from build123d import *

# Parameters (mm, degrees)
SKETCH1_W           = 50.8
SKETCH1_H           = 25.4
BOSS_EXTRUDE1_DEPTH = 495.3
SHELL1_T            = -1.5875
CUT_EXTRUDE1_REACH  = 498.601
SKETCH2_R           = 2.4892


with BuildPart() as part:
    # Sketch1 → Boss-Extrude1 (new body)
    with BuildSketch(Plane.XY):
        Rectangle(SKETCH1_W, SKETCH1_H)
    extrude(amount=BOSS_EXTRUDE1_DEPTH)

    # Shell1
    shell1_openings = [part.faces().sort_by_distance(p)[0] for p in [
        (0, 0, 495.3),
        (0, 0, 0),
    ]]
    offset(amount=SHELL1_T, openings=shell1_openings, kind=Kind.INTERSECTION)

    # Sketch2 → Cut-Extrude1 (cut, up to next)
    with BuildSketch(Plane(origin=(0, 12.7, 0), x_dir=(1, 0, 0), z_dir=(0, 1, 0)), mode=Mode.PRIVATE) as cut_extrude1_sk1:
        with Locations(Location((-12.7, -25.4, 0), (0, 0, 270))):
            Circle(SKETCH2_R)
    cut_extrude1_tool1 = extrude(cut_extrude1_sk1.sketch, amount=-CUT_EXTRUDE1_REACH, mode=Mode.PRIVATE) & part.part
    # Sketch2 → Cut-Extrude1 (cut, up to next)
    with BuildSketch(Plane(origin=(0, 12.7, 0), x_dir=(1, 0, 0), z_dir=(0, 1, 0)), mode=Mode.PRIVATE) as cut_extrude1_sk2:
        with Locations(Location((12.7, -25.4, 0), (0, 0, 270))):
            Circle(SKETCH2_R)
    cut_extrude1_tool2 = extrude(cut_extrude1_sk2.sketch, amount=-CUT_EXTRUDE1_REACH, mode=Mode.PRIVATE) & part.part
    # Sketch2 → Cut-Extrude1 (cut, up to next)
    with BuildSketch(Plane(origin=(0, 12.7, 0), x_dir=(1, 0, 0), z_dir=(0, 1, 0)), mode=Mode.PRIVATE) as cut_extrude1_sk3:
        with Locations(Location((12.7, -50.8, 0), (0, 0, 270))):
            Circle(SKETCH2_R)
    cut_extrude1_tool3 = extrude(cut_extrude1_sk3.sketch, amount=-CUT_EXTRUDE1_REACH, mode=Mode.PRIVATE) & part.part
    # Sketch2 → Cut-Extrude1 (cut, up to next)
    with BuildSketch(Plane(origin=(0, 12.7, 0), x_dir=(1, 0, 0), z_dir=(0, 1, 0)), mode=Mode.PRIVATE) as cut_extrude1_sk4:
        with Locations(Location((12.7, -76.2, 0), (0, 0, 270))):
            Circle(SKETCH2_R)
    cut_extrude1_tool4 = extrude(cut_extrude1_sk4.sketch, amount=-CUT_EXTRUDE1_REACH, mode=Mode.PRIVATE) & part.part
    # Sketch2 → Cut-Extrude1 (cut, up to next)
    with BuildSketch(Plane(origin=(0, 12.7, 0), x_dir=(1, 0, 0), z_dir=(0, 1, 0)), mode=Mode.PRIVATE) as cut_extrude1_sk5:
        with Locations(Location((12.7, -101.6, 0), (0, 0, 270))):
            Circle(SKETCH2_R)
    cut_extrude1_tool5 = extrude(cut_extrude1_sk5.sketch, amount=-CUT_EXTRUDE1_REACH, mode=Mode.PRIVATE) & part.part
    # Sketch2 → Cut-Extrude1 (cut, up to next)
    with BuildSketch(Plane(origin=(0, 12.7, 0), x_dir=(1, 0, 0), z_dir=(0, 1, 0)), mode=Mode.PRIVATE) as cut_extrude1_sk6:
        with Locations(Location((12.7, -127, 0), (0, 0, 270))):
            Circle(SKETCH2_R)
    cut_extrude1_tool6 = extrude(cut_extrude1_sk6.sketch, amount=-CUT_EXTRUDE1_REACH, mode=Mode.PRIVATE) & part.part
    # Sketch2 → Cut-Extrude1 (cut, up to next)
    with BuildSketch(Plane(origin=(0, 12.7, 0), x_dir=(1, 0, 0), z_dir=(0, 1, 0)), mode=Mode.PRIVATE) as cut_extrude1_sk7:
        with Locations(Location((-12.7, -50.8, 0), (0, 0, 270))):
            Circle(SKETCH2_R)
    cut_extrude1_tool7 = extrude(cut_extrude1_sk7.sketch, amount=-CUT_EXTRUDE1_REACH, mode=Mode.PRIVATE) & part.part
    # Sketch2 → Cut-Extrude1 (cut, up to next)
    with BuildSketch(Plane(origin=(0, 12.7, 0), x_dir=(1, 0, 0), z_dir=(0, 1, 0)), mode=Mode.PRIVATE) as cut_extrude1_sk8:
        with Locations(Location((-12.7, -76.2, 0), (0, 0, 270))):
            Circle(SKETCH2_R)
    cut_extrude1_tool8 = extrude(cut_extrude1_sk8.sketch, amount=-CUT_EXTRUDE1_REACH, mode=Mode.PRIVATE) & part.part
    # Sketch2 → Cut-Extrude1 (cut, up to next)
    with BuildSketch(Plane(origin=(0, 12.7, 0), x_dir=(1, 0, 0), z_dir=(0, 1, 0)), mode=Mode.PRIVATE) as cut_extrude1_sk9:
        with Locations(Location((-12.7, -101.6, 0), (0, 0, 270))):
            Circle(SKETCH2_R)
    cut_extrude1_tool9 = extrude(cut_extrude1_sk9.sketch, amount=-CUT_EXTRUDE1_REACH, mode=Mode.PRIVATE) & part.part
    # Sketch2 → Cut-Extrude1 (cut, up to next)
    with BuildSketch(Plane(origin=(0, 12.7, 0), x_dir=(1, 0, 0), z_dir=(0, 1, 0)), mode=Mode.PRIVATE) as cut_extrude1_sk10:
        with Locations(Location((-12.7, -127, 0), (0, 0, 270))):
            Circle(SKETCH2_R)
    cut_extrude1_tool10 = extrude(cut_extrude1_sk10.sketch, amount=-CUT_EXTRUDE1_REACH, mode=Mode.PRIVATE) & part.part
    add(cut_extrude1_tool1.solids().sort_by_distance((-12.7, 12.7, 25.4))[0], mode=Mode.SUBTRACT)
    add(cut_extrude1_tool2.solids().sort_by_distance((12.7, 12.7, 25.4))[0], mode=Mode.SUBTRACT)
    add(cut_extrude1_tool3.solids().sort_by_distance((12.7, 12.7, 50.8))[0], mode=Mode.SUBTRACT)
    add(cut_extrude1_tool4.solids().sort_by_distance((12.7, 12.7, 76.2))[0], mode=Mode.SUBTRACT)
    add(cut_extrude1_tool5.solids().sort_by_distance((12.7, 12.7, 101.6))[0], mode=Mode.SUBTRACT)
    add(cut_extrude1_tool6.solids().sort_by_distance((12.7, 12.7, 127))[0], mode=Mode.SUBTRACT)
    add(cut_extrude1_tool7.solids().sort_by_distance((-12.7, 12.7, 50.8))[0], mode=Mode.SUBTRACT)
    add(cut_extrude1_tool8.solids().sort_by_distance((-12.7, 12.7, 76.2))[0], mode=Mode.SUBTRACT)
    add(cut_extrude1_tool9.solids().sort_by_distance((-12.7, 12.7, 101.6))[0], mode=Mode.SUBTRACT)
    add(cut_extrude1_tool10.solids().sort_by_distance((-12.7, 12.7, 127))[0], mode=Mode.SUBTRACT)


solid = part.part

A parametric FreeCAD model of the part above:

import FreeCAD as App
import Part
import Sketcher

V = App.Vector
Q = App.Units.Quantity


def faces_at(feature, points):
    """Names of the faces that lie closest to the given points."""
    faces = feature.Shape.Faces
    near = lambda p: min(range(len(faces)), key=lambda i: faces[i].distToShape(Part.Vertex(*p))[0])
    return sorted({f"Face{near(p) + 1}" for p in points})


def add_polygon(sketch, points):
    """Adds a closed chain of lines whose ends are joined by coincident constraints."""
    first, n = sketch.GeometryCount, len(points)
    for a, b in zip(points, points[1:] + points[:1]):
        sketch.addGeometry(Part.LineSegment(App.Vector(*a, 0), App.Vector(*b, 0)), False)
    for i in range(n):
        sketch.addConstraint(Sketcher.Constraint("Coincident", first + i, 2, first + (i + 1) % n, 1))

doc = App.newDocument("Part")
params = doc.addObject("Spreadsheet::Sheet", "Params")
for row, (alias, value) in enumerate([
    ("sketch1_width", "2 in"),
    ("sketch1_height", "1 in"),
    ("pad1_length", "19.5 in"),
    ("thickness_wall", "0.0625 in"),
    ("sketch2_diameter", "0.196 in"),
    ("sketch3_diameter", "0.196 in"),
    ("sketch4_diameter", "0.196 in"),
    ("sketch5_diameter", "0.196 in"),
    ("sketch6_diameter", "0.196 in"),
    ("sketch7_diameter", "0.196 in"),
    ("sketch8_diameter", "0.196 in"),
    ("sketch9_diameter", "0.196 in"),
    ("sketch10_diameter", "0.196 in"),
    ("sketch11_diameter", "0.196 in"),
], start=1):
    params.set(f"A{row}", alias)
    params.set(f"B{row}", "=" + value)
    params.setAlias(f"B{row}", alias)

body = doc.addObject("PartDesign::Body", "Body")

# Sketch on XY plane
sketch1 = doc.addObject("Sketcher::SketchObject", "Sketch")
body.addObject(sketch1)
sketch1.AttachmentSupport = (doc.XY_Plane, [""])
sketch1.MapMode = "FlatFace"
add_polygon(sketch1, [(-25, 13), (-25, -13), (25, -13), (25, 13)])  # lines 0-3
sketch1.addConstraint([
    Sketcher.Constraint("Vertical", 0),
    Sketcher.Constraint("Horizontal", 1),
    Sketcher.Constraint("Vertical", 2),
    Sketcher.Constraint("Horizontal", 3),
    Sketcher.Constraint("Symmetric", 0, 2, 2, 2, -1, 1),
    Sketcher.Constraint("DistanceX", 1, 1, 1, 2, Q("2 in")),
    Sketcher.Constraint("DistanceY", 0, 2, 0, 1, Q("1 in")),
])
sketch1.setExpression("Constraints[9]", "Params.sketch1_width")
sketch1.setExpression("Constraints[10]", "Params.sketch1_height")
pad1 = doc.addObject("PartDesign::Pad", "Pad")
body.addObject(pad1)
pad1.Profile = sketch1
pad1.setExpression("Length", "Params.pad1_length")
doc.recompute()

thickness = doc.addObject("PartDesign::Thickness", "Thickness")
body.addObject(thickness)
thickness.Base = (pad1, faces_at(pad1, [(0, 0, 495.3), (0, 0, 0)]))
thickness.setExpression("Value", "Params.thickness_wall")
thickness.Reversed = True
thickness.Join = "Intersection"

# Sketch on XZ plane
sketch2 = doc.addObject("Sketcher::SketchObject", "Sketch001")
body.addObject(sketch2)
sketch2.AttachmentSupport = (doc.XZ_Plane, [""])
sketch2.MapMode = "FlatFace"
sketch2.AttachmentOffset = App.Placement(V(0, 0, -0.5 * 25.4), App.Rotation())
sketch2.addGeometry(Part.Circle(V(-12.7, 25.4, 0), V(0, 0, 1), 2.5), False)
sketch2.addConstraint([
    Sketcher.Constraint("Diameter", 0, Q("0.196 in")),
    Sketcher.Constraint("DistanceY", -1, 1, 0, 3, Q("1 in")),
    Sketcher.Constraint("DistanceX", 0, 3, -1, 1, Q("0.5 in")),
])
sketch2.setExpression("Constraints[0]", "Params.sketch2_diameter")
pocket1 = doc.addObject("PartDesign::Pocket", "Pocket")
body.addObject(pocket1)
pocket1.Profile = sketch2
pocket1.Type = "UpToFirst"
pocket1.Reversed = True

# Sketch on XZ plane
sketch3 = doc.addObject("Sketcher::SketchObject", "Sketch002")
body.addObject(sketch3)
sketch3.AttachmentSupport = (doc.XZ_Plane, [""])
sketch3.MapMode = "FlatFace"
sketch3.AttachmentOffset = App.Placement(V(0, 0, -0.5 * 25.4), App.Rotation())
sketch3.addGeometry(Part.Circle(V(12.7, 25.4, 0), V(0, 0, 1), 2.5), False)
sketch3.addConstraint([
    Sketcher.Constraint("Diameter", 0, Q("0.196 in")),
    Sketcher.Constraint("DistanceY", -1, 1, 0, 3, Q("1 in")),
    Sketcher.Constraint("DistanceX", -1, 1, 0, 3, Q("0.5 in")),
])
sketch3.setExpression("Constraints[0]", "Params.sketch3_diameter")
pocket2 = doc.addObject("PartDesign::Pocket", "Pocket001")
body.addObject(pocket2)
pocket2.Profile = sketch3
pocket2.Type = "UpToFirst"
pocket2.Reversed = True

# Sketch on XZ plane
sketch4 = doc.addObject("Sketcher::SketchObject", "Sketch003")
body.addObject(sketch4)
sketch4.AttachmentSupport = (doc.XZ_Plane, [""])
sketch4.MapMode = "FlatFace"
sketch4.AttachmentOffset = App.Placement(V(0, 0, -0.5 * 25.4), App.Rotation())
sketch4.addGeometry(Part.Circle(V(12.7, 50.8, 0), V(0, 0, 1), 2.5), False)
sketch4.addConstraint([
    Sketcher.Constraint("Diameter", 0, Q("0.196 in")),
    Sketcher.Constraint("DistanceY", -1, 1, 0, 3, Q("2 in")),
    Sketcher.Constraint("DistanceX", -1, 1, 0, 3, Q("0.5 in")),
])
sketch4.setExpression("Constraints[0]", "Params.sketch4_diameter")
pocket3 = doc.addObject("PartDesign::Pocket", "Pocket002")
body.addObject(pocket3)
pocket3.Profile = sketch4
pocket3.Type = "UpToFirst"
pocket3.Reversed = True

# Sketch on XZ plane
sketch5 = doc.addObject("Sketcher::SketchObject", "Sketch004")
body.addObject(sketch5)
sketch5.AttachmentSupport = (doc.XZ_Plane, [""])
sketch5.MapMode = "FlatFace"
sketch5.AttachmentOffset = App.Placement(V(0, 0, -0.5 * 25.4), App.Rotation())
sketch5.addGeometry(Part.Circle(V(12.7, 76.2, 0), V(0, 0, 1), 2.5), False)
sketch5.addConstraint([
    Sketcher.Constraint("Diameter", 0, Q("0.196 in")),
    Sketcher.Constraint("DistanceY", -1, 1, 0, 3, Q("3 in")),
    Sketcher.Constraint("DistanceX", -1, 1, 0, 3, Q("0.5 in")),
])
sketch5.setExpression("Constraints[0]", "Params.sketch5_diameter")
pocket4 = doc.addObject("PartDesign::Pocket", "Pocket003")
body.addObject(pocket4)
pocket4.Profile = sketch5
pocket4.Type = "UpToFirst"
pocket4.Reversed = True

# Sketch on XZ plane
sketch6 = doc.addObject("Sketcher::SketchObject", "Sketch005")
body.addObject(sketch6)
sketch6.AttachmentSupport = (doc.XZ_Plane, [""])
sketch6.MapMode = "FlatFace"
sketch6.AttachmentOffset = App.Placement(V(0, 0, -0.5 * 25.4), App.Rotation())
sketch6.addGeometry(Part.Circle(V(12.7, 101.6, 0), V(0, 0, 1), 2.5), False)
sketch6.addConstraint([
    Sketcher.Constraint("Diameter", 0, Q("0.196 in")),
    Sketcher.Constraint("DistanceY", -1, 1, 0, 3, Q("4 in")),
    Sketcher.Constraint("DistanceX", -1, 1, 0, 3, Q("0.5 in")),
])
sketch6.setExpression("Constraints[0]", "Params.sketch6_diameter")
pocket5 = doc.addObject("PartDesign::Pocket", "Pocket004")
body.addObject(pocket5)
pocket5.Profile = sketch6
pocket5.Type = "UpToFirst"
pocket5.Reversed = True

# Sketch on XZ plane
sketch7 = doc.addObject("Sketcher::SketchObject", "Sketch006")
body.addObject(sketch7)
sketch7.AttachmentSupport = (doc.XZ_Plane, [""])
sketch7.MapMode = "FlatFace"
sketch7.AttachmentOffset = App.Placement(V(0, 0, -0.5 * 25.4), App.Rotation())
sketch7.addGeometry(Part.Circle(V(12.7, 127, 0), V(0, 0, 1), 2.5), False)
sketch7.addConstraint([
    Sketcher.Constraint("Diameter", 0, Q("0.196 in")),
    Sketcher.Constraint("DistanceY", -1, 1, 0, 3, Q("5 in")),
    Sketcher.Constraint("DistanceX", -1, 1, 0, 3, Q("0.5 in")),
])
sketch7.setExpression("Constraints[0]", "Params.sketch7_diameter")
pocket6 = doc.addObject("PartDesign::Pocket", "Pocket005")
body.addObject(pocket6)
pocket6.Profile = sketch7
pocket6.Type = "UpToFirst"
pocket6.Reversed = True

# Sketch on XZ plane
sketch8 = doc.addObject("Sketcher::SketchObject", "Sketch007")
body.addObject(sketch8)
sketch8.AttachmentSupport = (doc.XZ_Plane, [""])
sketch8.MapMode = "FlatFace"
sketch8.AttachmentOffset = App.Placement(V(0, 0, -0.5 * 25.4), App.Rotation())
sketch8.addGeometry(Part.Circle(V(-12.7, 50.8, 0), V(0, 0, 1), 2.5), False)
sketch8.addConstraint([
    Sketcher.Constraint("Diameter", 0, Q("0.196 in")),
    Sketcher.Constraint("DistanceY", -1, 1, 0, 3, Q("2 in")),
    Sketcher.Constraint("DistanceX", 0, 3, -1, 1, Q("0.5 in")),
])
sketch8.setExpression("Constraints[0]", "Params.sketch8_diameter")
pocket7 = doc.addObject("PartDesign::Pocket", "Pocket006")
body.addObject(pocket7)
pocket7.Profile = sketch8
pocket7.Type = "UpToFirst"
pocket7.Reversed = True

# Sketch on XZ plane
sketch9 = doc.addObject("Sketcher::SketchObject", "Sketch008")
body.addObject(sketch9)
sketch9.AttachmentSupport = (doc.XZ_Plane, [""])
sketch9.MapMode = "FlatFace"
sketch9.AttachmentOffset = App.Placement(V(0, 0, -0.5 * 25.4), App.Rotation())
sketch9.addGeometry(Part.Circle(V(-12.7, 76.2, 0), V(0, 0, 1), 2.5), False)
sketch9.addConstraint([
    Sketcher.Constraint("Diameter", 0, Q("0.196 in")),
    Sketcher.Constraint("DistanceY", -1, 1, 0, 3, Q("3 in")),
    Sketcher.Constraint("DistanceX", 0, 3, -1, 1, Q("0.5 in")),
])
sketch9.setExpression("Constraints[0]", "Params.sketch9_diameter")
pocket8 = doc.addObject("PartDesign::Pocket", "Pocket007")
body.addObject(pocket8)
pocket8.Profile = sketch9
pocket8.Type = "UpToFirst"
pocket8.Reversed = True

# Sketch on XZ plane
sketch10 = doc.addObject("Sketcher::SketchObject", "Sketch009")
body.addObject(sketch10)
sketch10.AttachmentSupport = (doc.XZ_Plane, [""])
sketch10.MapMode = "FlatFace"
sketch10.AttachmentOffset = App.Placement(V(0, 0, -0.5 * 25.4), App.Rotation())
sketch10.addGeometry(Part.Circle(V(-12.7, 101.6, 0), V(0, 0, 1), 2.5), False)
sketch10.addConstraint([
    Sketcher.Constraint("Diameter", 0, Q("0.196 in")),
    Sketcher.Constraint("DistanceY", -1, 1, 0, 3, Q("4 in")),
    Sketcher.Constraint("DistanceX", 0, 3, -1, 1, Q("0.5 in")),
])
sketch10.setExpression("Constraints[0]", "Params.sketch10_diameter")
pocket9 = doc.addObject("PartDesign::Pocket", "Pocket008")
body.addObject(pocket9)
pocket9.Profile = sketch10
pocket9.Type = "UpToFirst"
pocket9.Reversed = True

# Sketch on XZ plane
sketch11 = doc.addObject("Sketcher::SketchObject", "Sketch010")
body.addObject(sketch11)
sketch11.AttachmentSupport = (doc.XZ_Plane, [""])
sketch11.MapMode = "FlatFace"
sketch11.AttachmentOffset = App.Placement(V(0, 0, -0.5 * 25.4), App.Rotation())
sketch11.addGeometry(Part.Circle(V(-12.7, 127, 0), V(0, 0, 1), 2.5), False)
sketch11.addConstraint([
    Sketcher.Constraint("Diameter", 0, Q("0.196 in")),
    Sketcher.Constraint("DistanceY", -1, 1, 0, 3, Q("5 in")),
    Sketcher.Constraint("DistanceX", 0, 3, -1, 1, Q("0.5 in")),
])
sketch11.setExpression("Constraints[0]", "Params.sketch11_diameter")
pocket10 = doc.addObject("PartDesign::Pocket", "Pocket009")
body.addObject(pocket10)
pocket10.Profile = sketch11
pocket10.Type = "UpToFirst"
pocket10.Reversed = True

doc.recompute()
